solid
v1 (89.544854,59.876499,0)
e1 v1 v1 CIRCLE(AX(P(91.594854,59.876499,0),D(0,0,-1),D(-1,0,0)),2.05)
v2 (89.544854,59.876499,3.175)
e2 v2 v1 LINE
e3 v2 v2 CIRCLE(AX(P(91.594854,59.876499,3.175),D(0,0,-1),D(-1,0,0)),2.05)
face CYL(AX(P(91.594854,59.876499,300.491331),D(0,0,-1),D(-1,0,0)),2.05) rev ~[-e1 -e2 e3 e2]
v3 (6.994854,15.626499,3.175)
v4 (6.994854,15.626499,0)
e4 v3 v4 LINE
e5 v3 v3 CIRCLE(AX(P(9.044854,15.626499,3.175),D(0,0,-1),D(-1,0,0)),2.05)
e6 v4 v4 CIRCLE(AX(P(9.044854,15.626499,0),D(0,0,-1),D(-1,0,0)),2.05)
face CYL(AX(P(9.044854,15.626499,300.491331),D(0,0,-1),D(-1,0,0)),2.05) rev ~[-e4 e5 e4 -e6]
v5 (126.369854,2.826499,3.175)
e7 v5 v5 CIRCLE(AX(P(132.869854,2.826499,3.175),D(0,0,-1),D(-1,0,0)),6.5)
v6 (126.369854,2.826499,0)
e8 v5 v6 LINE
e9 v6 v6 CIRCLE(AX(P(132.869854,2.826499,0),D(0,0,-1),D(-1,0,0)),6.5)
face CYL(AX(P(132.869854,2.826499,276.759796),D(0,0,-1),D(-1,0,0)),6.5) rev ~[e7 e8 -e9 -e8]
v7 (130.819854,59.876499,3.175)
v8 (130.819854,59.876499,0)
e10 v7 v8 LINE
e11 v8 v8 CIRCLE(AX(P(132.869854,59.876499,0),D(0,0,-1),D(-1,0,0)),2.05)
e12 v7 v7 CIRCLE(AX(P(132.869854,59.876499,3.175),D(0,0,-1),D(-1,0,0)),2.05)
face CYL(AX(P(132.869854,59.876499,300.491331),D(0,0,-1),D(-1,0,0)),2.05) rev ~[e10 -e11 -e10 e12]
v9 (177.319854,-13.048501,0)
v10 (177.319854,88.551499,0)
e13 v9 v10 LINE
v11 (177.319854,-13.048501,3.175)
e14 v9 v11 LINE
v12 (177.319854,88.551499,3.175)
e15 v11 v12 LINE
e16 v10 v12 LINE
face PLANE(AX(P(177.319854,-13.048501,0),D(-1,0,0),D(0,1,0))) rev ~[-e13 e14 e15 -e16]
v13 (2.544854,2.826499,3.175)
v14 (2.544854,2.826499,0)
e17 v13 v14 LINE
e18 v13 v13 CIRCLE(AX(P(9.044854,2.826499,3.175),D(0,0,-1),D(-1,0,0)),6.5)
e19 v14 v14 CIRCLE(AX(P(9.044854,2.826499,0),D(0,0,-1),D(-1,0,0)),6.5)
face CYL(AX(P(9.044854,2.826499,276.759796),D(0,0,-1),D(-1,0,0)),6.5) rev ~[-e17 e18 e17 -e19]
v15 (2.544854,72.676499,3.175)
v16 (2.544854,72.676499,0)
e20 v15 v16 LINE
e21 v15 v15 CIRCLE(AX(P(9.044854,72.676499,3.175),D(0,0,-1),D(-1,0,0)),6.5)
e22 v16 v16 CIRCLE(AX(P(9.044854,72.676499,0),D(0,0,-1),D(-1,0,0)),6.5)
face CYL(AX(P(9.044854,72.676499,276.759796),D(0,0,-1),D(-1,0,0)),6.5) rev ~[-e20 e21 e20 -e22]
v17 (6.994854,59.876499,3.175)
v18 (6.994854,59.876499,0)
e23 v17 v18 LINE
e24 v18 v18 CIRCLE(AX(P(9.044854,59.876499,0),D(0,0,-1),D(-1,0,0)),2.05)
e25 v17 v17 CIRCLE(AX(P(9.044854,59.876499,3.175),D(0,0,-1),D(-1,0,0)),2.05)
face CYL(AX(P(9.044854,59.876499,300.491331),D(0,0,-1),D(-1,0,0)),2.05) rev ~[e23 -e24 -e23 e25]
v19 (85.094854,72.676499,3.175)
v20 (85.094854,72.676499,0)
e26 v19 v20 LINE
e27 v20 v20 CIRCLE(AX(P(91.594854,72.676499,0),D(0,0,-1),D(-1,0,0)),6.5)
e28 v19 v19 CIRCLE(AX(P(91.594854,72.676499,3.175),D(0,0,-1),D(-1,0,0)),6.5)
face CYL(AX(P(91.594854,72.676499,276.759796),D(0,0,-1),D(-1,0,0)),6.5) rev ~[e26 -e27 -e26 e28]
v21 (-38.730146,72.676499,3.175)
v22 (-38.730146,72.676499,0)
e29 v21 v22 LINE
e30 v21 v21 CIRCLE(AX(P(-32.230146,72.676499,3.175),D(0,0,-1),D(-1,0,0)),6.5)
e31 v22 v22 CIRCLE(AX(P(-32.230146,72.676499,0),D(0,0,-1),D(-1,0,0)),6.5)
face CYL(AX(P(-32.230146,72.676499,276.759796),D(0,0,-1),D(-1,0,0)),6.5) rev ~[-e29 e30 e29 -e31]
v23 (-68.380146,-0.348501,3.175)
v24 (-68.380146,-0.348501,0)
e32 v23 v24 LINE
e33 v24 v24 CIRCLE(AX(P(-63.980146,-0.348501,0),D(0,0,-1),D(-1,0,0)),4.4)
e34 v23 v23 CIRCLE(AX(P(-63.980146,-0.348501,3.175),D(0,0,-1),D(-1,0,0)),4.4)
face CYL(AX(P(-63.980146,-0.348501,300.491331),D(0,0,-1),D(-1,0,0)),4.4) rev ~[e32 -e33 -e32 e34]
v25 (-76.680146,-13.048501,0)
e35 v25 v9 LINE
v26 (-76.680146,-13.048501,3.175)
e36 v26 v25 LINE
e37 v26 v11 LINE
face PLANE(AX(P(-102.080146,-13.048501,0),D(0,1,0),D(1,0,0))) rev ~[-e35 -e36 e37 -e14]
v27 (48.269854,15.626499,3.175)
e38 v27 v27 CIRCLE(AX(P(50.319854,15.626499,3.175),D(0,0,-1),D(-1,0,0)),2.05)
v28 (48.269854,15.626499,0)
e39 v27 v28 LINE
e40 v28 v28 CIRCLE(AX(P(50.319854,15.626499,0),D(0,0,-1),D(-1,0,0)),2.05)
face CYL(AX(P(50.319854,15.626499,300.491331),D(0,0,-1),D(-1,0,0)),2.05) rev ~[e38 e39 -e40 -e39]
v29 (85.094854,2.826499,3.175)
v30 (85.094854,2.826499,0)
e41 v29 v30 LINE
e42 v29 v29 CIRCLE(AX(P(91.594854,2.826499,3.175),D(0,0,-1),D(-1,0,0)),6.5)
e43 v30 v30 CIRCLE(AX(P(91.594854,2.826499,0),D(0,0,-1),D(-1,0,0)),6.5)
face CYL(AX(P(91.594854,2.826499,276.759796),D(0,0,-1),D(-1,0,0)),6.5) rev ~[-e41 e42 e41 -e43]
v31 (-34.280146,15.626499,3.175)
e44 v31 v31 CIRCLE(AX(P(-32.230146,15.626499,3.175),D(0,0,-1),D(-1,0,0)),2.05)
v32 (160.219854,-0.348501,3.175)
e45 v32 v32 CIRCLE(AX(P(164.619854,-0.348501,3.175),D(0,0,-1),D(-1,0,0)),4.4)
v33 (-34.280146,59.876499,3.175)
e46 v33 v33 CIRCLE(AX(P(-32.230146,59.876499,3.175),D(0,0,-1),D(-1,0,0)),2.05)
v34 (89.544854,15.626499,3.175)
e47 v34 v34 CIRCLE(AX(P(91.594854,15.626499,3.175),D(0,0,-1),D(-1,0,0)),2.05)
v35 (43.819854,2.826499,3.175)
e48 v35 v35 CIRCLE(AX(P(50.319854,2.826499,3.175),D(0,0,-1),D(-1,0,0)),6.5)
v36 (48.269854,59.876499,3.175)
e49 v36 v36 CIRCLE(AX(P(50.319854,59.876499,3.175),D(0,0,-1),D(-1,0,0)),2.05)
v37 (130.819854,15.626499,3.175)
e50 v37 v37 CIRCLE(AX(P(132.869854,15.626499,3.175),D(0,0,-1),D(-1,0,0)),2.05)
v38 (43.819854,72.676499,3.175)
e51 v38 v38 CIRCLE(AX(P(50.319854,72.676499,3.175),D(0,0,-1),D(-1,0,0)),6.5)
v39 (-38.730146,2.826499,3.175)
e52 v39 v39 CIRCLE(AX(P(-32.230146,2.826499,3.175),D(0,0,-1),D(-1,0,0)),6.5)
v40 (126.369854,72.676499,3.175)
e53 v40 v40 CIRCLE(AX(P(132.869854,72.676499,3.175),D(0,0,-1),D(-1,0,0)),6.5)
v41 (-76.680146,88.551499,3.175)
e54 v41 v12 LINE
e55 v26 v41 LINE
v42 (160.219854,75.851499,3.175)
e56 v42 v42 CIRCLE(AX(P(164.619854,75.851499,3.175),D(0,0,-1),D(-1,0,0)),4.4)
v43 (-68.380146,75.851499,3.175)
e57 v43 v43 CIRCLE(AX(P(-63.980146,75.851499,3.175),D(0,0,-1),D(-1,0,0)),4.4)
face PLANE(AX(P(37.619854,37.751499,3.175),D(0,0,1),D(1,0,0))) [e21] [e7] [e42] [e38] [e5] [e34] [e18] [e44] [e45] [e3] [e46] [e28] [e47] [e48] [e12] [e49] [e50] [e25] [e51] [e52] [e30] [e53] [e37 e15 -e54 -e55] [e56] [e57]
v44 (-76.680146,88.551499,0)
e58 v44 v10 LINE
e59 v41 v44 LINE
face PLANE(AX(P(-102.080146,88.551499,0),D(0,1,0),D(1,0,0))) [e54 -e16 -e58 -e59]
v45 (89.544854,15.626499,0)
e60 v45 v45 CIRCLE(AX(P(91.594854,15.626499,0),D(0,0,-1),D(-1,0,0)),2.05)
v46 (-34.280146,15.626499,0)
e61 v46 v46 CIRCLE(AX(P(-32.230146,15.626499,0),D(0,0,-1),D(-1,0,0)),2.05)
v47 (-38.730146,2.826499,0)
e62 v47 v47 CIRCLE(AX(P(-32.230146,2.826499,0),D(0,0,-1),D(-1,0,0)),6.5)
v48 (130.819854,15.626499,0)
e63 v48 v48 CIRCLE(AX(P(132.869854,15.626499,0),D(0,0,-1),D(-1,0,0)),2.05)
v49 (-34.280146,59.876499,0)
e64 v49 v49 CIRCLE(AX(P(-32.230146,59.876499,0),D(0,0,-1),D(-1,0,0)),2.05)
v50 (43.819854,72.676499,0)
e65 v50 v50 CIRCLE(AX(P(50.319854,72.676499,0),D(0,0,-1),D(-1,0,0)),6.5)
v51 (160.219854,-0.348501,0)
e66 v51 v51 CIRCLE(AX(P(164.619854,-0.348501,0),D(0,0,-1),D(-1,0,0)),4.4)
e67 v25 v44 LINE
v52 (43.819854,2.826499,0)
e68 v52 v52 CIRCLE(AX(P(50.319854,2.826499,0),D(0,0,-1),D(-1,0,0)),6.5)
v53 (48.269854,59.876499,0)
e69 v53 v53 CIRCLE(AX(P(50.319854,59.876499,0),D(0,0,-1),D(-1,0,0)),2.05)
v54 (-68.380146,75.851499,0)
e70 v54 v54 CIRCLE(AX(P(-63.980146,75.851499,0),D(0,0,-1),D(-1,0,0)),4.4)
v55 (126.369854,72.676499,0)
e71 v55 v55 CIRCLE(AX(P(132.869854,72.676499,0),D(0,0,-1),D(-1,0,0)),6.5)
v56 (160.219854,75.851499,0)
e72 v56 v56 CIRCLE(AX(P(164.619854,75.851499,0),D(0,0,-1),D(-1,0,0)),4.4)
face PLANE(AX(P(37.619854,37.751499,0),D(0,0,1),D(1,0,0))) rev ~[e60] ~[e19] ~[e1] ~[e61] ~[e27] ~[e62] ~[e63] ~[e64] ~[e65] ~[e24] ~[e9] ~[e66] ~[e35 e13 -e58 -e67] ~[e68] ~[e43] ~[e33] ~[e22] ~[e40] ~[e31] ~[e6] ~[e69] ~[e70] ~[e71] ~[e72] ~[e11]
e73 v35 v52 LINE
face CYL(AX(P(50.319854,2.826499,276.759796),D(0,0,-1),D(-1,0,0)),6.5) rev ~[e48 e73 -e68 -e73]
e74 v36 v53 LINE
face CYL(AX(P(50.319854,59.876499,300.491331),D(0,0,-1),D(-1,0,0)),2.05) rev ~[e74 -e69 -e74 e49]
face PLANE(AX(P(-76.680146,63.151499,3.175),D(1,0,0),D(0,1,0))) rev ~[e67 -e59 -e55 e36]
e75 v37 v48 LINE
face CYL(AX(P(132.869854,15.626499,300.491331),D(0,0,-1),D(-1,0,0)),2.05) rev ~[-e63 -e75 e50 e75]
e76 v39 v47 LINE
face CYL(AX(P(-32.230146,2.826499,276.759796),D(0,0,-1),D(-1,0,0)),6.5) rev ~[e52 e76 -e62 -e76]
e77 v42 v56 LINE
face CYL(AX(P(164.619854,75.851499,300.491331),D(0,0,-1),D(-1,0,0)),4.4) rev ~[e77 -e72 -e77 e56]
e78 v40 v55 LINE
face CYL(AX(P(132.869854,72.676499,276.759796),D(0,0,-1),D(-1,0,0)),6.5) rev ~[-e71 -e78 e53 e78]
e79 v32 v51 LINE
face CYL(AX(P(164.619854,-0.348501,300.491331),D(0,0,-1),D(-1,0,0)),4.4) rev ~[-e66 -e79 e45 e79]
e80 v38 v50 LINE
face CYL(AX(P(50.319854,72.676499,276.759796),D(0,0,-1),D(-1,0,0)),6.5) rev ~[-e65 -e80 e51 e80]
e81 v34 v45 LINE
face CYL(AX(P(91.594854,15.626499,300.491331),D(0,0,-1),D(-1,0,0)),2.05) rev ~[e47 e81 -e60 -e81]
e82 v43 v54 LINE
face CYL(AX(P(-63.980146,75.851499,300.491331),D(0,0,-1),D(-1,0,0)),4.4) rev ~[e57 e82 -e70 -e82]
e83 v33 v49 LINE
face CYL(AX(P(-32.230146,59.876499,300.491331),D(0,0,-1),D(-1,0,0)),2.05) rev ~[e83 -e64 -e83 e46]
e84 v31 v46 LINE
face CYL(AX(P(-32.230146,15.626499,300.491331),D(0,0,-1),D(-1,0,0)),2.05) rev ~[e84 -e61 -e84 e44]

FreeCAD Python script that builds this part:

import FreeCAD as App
import Part
import Sketcher
from FreeCAD import Vector
Q = App.Units.Quantity


def add_polygon(sketch, points):
    """Adds a closed chain of lines whose ends are joined by coincident constraints."""
    first, n = sketch.GeometryCount, len(points)
    for a, b in zip(points, points[1:] + points[:1]):
        sketch.addGeometry(Part.LineSegment(App.Vector(*a, 0), App.Vector(*b, 0)), False)
    for i in range(n):
        sketch.addConstraint(Sketcher.Constraint("Coincident", first + i, 2, first + (i + 1) % n, 1))

doc = App.newDocument("Part")
body = doc.addObject("PartDesign::Body", "Body")

# Sketch on XY plane
sketch1 = body.newObject("Sketcher::SketchObject", "Sketch")
sketch1.AttachmentSupport = (doc.getObject("XY_Plane"), [""])
sketch1.MapMode = "FlatFace"
add_polygon(sketch1, [(-102.080146, 88.551499), (-102.080146, -13.048501), (177.319854, -13.048501), (177.319854, 88.551499)])  # lines 0-3
sketch1.addConstraint(Sketcher.Constraint("Vertical", 0))
sketch1.addConstraint(Sketcher.Constraint("Horizontal", 1))
sketch1.addConstraint(Sketcher.Constraint("Vertical", 2))
sketch1.addConstraint(Sketcher.Constraint("Horizontal", 3))
sketch1.addConstraint(Sketcher.Constraint("DistanceX", 1, 1, 1, 2, Q("11 in")))
sketch1.addConstraint(Sketcher.Constraint("DistanceY", 0, 2, 0, 1, Q("4 in")))
sketch1.addConstraint(Sketcher.Constraint("DistanceY", 0, 2, -1, 1, Q("13.048501 mm")))
sketch1.addConstraint(Sketcher.Constraint("DistanceX", 0, 2, -1, 1, Q("102.080146 mm")))
pad1 = body.newObject("PartDesign::Pad", "Pad")
pad1.Profile = sketch1
pad1.Length = Q("0.125 in")

# Sketch on XY plane
sketch2 = body.newObject("Sketcher::SketchObject", "Sketch001")
sketch2.AttachmentSupport = (doc.getObject("XY_Plane"), [""])
sketch2.MapMode = "FlatFace"
sketch2.AttachmentOffset = App.Placement(Vector(0, 0, 0.125 * 25.4), App.Rotation())
add_polygon(sketch2, [(-102.080146, 63.151499), (-102.080146, -13.048501), (-76.680146, -13.048501), (-76.680146, 63.151499)])  # lines 0-3
sketch2.addConstraint(Sketcher.Constraint("Vertical", 0))
sketch2.addConstraint(Sketcher.Constraint("Horizontal", 1))
sketch2.addConstraint(Sketcher.Constraint("Vertical", 2))
sketch2.addConstraint(Sketcher.Constraint("Horizontal", 3))
sketch2.addConstraint(Sketcher.Constraint("DistanceX", 1, 1, 1, 2, Q("1 in")))
sketch2.addConstraint(Sketcher.Constraint("DistanceY", 0, 2, 0, 1, Q("3 in")))
sketch2.addConstraint(Sketcher.Constraint("DistanceY", 0, 2, -1, 1, Q("13.048501 mm")))
sketch2.addConstraint(Sketcher.Constraint("DistanceX", 0, 2, -1, 1, Q("102.080146 mm")))
pocket1 = body.newObject("PartDesign::Pocket", "Pocket")
pocket1.Profile = sketch2
pocket1.Type = "ThroughAll"

# Sketch on XY plane
sketch3 = body.newObject("Sketcher::SketchObject", "Sketch002")
sketch3.AttachmentSupport = (doc.getObject("XY_Plane"), [""])
sketch3.MapMode = "FlatFace"
sketch3.AttachmentOffset = App.Placement(Vector(0, 0, 0.125 * 25.4), App.Rotation())
sketch3.addGeometry(Part.Circle(Vector(-89.380146, 75.851499, 0), Vector(0, 0, 1), 3.175), False)
sketch3.addConstraint(Sketcher.Constraint("Diameter", 0, Q("0.25 in")))
sketch3.addConstraint(Sketcher.Constraint("DistanceY", -1, 1, 0, 3, Q("75.851499 mm")))
sketch3.addConstraint(Sketcher.Constraint("DistanceX", 0, 3, -1, 1, Q("89.380146 mm")))
doc.recompute()
hole = body.newObject("PartDesign::Hole", "Hole")
hole.Profile = sketch3
hole.ThreadType = "None"
hole.Diameter = Q("0.25 in")
hole.DepthType = "ThroughAll"

# Sketch on XY plane
sketch4 = body.newObject("Sketcher::SketchObject", "Sketch003")
sketch4.AttachmentSupport = (doc.getObject("XY_Plane"), [""])
sketch4.MapMode = "FlatFace"
sketch4.AttachmentOffset = App.Placement(Vector(0, 0, 0.125 * 25.4), App.Rotation())
sketch4.addGeometry(Part.Circle(Vector(-63.980146, 75.851499, 0), Vector(0, 0, 1), 4.4), False)
sketch4.addConstraint(Sketcher.Constraint("Diameter", 0, Q("8.8 mm")))
sketch4.addConstraint(Sketcher.Constraint("DistanceY", -1, 1, 0, 3, Q("75.851499 mm")))
sketch4.addConstraint(Sketcher.Constraint("DistanceX", 0, 3, -1, 1, Q("63.980146 mm")))
doc.recompute()
hole2 = body.newObject("PartDesign::Hole", "Hole001")
hole2.Profile = sketch4
hole2.ThreadType = "None"
hole2.Diameter = 8.8
hole2.DepthType = "ThroughAll"

# Sketch on XY plane
sketch5 = body.newObject("Sketcher::SketchObject", "Sketch004")
sketch5.AttachmentSupport = (doc.getObject("XY_Plane"), [""])
sketch5.MapMode = "FlatFace"
sketch5.AttachmentOffset = App.Placement(Vector(0, 0, 0.125 * 25.4), App.Rotation())
sketch5.addGeometry(Part.Circle(Vector(-63.980146, -0.348501, 0), Vector(0, 0, 1), 4.4), False)
sketch5.addGeometry(Part.Circle(Vector(164.619854, -0.348501, 0), Vector(0, 0, 1), 4.4), False)
sketch5.addGeometry(Part.Circle(Vector(164.619854, 75.851499, 0), Vector(0, 0, 1), 4.4), False)
sketch5.addConstraint(Sketcher.Constraint("Equal", 0, 1))
sketch5.addConstraint(Sketcher.Constraint("Equal", 1, 2))
sketch5.addConstraint(Sketcher.Constraint("Horizontal", 0, 3, 1, 3))
sketch5.addConstraint(Sketcher.Constraint("Vertical", 1, 3, 2, 3))
sketch5.addConstraint(Sketcher.Constraint("DistanceX", 0, 3, 1, 3, Q("9 in")))
sketch5.addConstraint(Sketcher.Constraint("DistanceY", 1, 3, 2, 3, Q("3 in")))
sketch5.addConstraint(Sketcher.Constraint("Diameter", 0, Q("8.8 mm")))
sketch5.addConstraint(Sketcher.Constraint("DistanceY", 0, 3, -1, 1, Q("0.348501 mm")))
sketch5.addConstraint(Sketcher.Constraint("DistanceX", 0, 3, -1, 1, Q("63.980146 mm")))
doc.recompute()
hole3 = body.newObject("PartDesign::Hole", "Hole002")
hole3.Profile = sketch5
hole3.ThreadType = "None"
hole3.Diameter = 8.8
hole3.DepthType = "ThroughAll"

# Sketch on XY plane
sketch6 = body.newObject("Sketcher::SketchObject", "Sketch005")
sketch6.AttachmentSupport = (doc.getObject("XY_Plane"), [""])
sketch6.MapMode = "FlatFace"
sketch6.AttachmentOffset = App.Placement(Vector(0, 0, 0.125 * 25.4), App.Rotation())
sketch6.addGeometry(Part.Circle(Vector(132.869854, 15.626499, 0), Vector(0, 0, 1), 2.05), False)
sketch6.addGeometry(Part.Circle(Vector(91.594854, 15.626499, 0), Vector(0, 0, 1), 2.05), False)
sketch6.addGeometry(Part.Circle(Vector(50.319854, 15.626499, 0), Vector(0, 0, 1), 2.05), False)
sketch6.addGeometry(Part.Circle(Vector(9.044854, 15.626499, 0), Vector(0, 0, 1), 2.05), False)
sketch6.addGeometry(Part.Circle(Vector(-32.230146, 15.626499, 0), Vector(0, 0, 1), 2.05), False)
sketch6.addGeometry(Part.Circle(Vector(132.869854, 59.876499, 0), Vector(0, 0, 1), 2.05), False)
sketch6.addGeometry(Part.Circle(Vector(91.594854, 59.876499, 0), Vector(0, 0, 1), 2.05), False)
sketch6.addGeometry(Part.Circle(Vector(50.319854, 59.876499, 0), Vector(0, 0, 1), 2.05), False)
sketch6.addGeometry(Part.Circle(Vector(9.044854, 59.876499, 0), Vector(0, 0, 1), 2.05), False)
sketch6.addGeometry(Part.Circle(Vector(-32.230146, 59.876499, 0), Vector(0, 0, 1), 2.05), False)
sketch6.addConstraint(Sketcher.Constraint("Equal", 0, 1))
sketch6.addConstraint(Sketcher.Constraint("Equal", 1, 2))
sketch6.addConstraint(Sketcher.Constraint("Equal", 2, 3))
sketch6.addConstraint(Sketcher.Constraint("Equal", 3, 4))
sketch6.addConstraint(Sketcher.Constraint("Equal", 4, 5))
sketch6.addConstraint(Sketcher.Constraint("Equal", 5, 6))
sketch6.addConstraint(Sketcher.Constraint("Equal", 6, 7))
sketch6.addConstraint(Sketcher.Constraint("Equal", 7, 8))
sketch6.addConstraint(Sketcher.Constraint("Equal", 8, 9))
sketch6.addConstraint(Sketcher.Constraint("Horizontal", 0, 3, 1, 3))
sketch6.addConstraint(Sketcher.Constraint("Horizontal", 1, 3, 2, 3))
sketch6.addConstraint(Sketcher.Constraint("Horizontal", 2, 3, 3, 3))
sketch6.addConstraint(Sketcher.Constraint("Horizontal", 3, 3, 4, 3))
sketch6.addConstraint(Sketcher.Constraint("Horizontal", 5, 3, 6, 3))
sketch6.addConstraint(Sketcher.Constraint("Horizontal", 6, 3, 7, 3))
sketch6.addConstraint(Sketcher.Constraint("Horizontal", 7, 3, 8, 3))
sketch6.addConstraint(Sketcher.Constraint("Horizontal", 8, 3, 9, 3))
sketch6.addConstraint(Sketcher.Constraint("Vertical", 0, 3, 5, 3))
sketch6.addConstraint(Sketcher.Constraint("Vertical", 1, 3, 6, 3))
sketch6.addConstraint(Sketcher.Constraint("Vertical", 2, 3, 7, 3))
sketch6.addConstraint(Sketcher.Constraint("Vertical", 3, 3, 8, 3))
sketch6.addConstraint(Sketcher.Constraint("Vertical", 4, 3, 9, 3))
sketch6.addConstraint(Sketcher.Constraint("DistanceX", 4, 3, 0, 3, Q("6.5 in")))
sketch6.addConstraint(Sketcher.Constraint("Diameter", 0, Q("4.1 mm")))
sketch6.addConstraint(Sketcher.Constraint("DistanceX", 2, 3, 0, 3, Q("3.25 in")))
sketch6.addConstraint(Sketcher.Constraint("DistanceX", 3, 3, 1, 3, Q("3.25 in")))
sketch6.addConstraint(Sketcher.Constraint("DistanceX", 1, 3, 0, 3, Q("1.625 in")))
sketch6.addConstraint(Sketcher.Constraint("DistanceY", -1, 1, 0, 3, Q("15.626499 mm")))
sketch6.addConstraint(Sketcher.Constraint("DistanceY", -1, 1, 5, 3, Q("59.876499 mm")))
sketch6.addConstraint(Sketcher.Constraint("DistanceX", -1, 1, 0, 3, Q("132.869854 mm")))
doc.recompute()
hole4 = body.newObject("PartDesign::Hole", "Hole003")
hole4.Profile = sketch6
hole4.ThreadType = "None"
hole4.Diameter = 4.1
hole4.DepthType = "ThroughAll"

# Sketch on XY plane
sketch7 = body.newObject("Sketcher::SketchObject", "Sketch006")
sketch7.AttachmentSupport = (doc.getObject("XY_Plane"), [""])
sketch7.MapMode = "FlatFace"
sketch7.AttachmentOffset = App.Placement(Vector(0, 0, 0.125 * 25.4), App.Rotation())
add_polygon(sketch7, [(-102.080146, 88.551499), (-102.080146, 63.151499), (-76.680146, 63.151499), (-76.680146, 88.551499)])  # lines 0-3
sketch7.addGeometry(Part.Circle(Vector(-89.380146, 75.851499, 0), Vector(0, 0, 1), 3.175), False)  # 4
sketch7.addConstraint(Sketcher.Constraint("Vertical", 0))
sketch7.addConstraint(Sketcher.Constraint("Horizontal", 1))
sketch7.addConstraint(Sketcher.Constraint("Vertical", 2))
sketch7.addConstraint(Sketcher.Constraint("Horizontal", 3))
sketch7.addConstraint(Sketcher.Constraint("Equal", 3, 0))
sketch7.addConstraint(Sketcher.Constraint("Diameter", 4, Q("0.25 in")))
sketch7.addConstraint(Sketcher.Constraint("DistanceX", 1, 1, 1, 2, Q("1 in")))
sketch7.addConstraint(Sketcher.Constraint("DistanceX", 0, 2, 4, 3, Q("0.5 in")))
sketch7.addConstraint(Sketcher.Constraint("DistanceY", 0, 2, 4, 3, Q("0.5 in")))
sketch7.addConstraint(Sketcher.Constraint("DistanceY", -1, 1, 4, 3, Q("75.851499 mm")))
sketch7.addConstraint(Sketcher.Constraint("DistanceX", 4, 3, -1, 1, Q("89.380146 mm")))
pocket2 = body.newObject("PartDesign::Pocket", "Pocket001")
pocket2.Profile = sketch7
pocket2.Length = Q("1 in")

# Sketch on XY plane
sketch8 = body.newObject("Sketcher::SketchObject", "Sketch007")
sketch8.AttachmentSupport = (doc.getObject("XY_Plane"), [""])
sketch8.MapMode = "FlatFace"
sketch8.AttachmentOffset = App.Placement(Vector(0, 0, 0.125 * 25.4), App.Rotation())
sketch8.addGeometry(Part.Circle(Vector(132.869854, 2.826499, 0), Vector(0, 0, 1), 6.5), False)
sketch8.addGeometry(Part.Circle(Vector(91.594854, 2.826499, 0), Vector(0, 0, 1), 6.5), False)
sketch8.addGeometry(Part.Circle(Vector(50.319854, 2.826499, 0), Vector(0, 0, 1), 6.5), False)
sketch8.addGeometry(Part.Circle(Vector(9.044854, 2.826499, 0), Vector(0, 0, 1), 6.5), False)
sketch8.addGeometry(Part.Circle(Vector(-32.230146, 2.826499, 0), Vector(0, 0, 1), 6.5), False)
sketch8.addGeometry(Part.Circle(Vector(132.869854, 72.676499, 0), Vector(0, 0, 1), 6.5), False)
sketch8.addGeometry(Part.Circle(Vector(91.594854, 72.676499, 0), Vector(0, 0, 1), 6.5), False)
sketch8.addGeometry(Part.Circle(Vector(50.319854, 72.676499, 0), Vector(0, 0, 1), 6.5), False)
sketch8.addGeometry(Part.Circle(Vector(9.044854, 72.676499, 0), Vector(0, 0, 1), 6.5), False)
sketch8.addGeometry(Part.Circle(Vector(-32.230146, 72.676499, 0), Vector(0, 0, 1), 6.5), False)
sketch8.addConstraint(Sketcher.Constraint("Equal", 0, 1))
sketch8.addConstraint(Sketcher.Constraint("Equal", 1, 2))
sketch8.addConstraint(Sketcher.Constraint("Equal", 2, 3))
sketch8.addConstraint(Sketcher.Constraint("Equal", 3, 4))
sketch8.addConstraint(Sketcher.Constraint("Equal", 4, 5))
sketch8.addConstraint(Sketcher.Constraint("Equal", 5, 6))
sketch8.addConstraint(Sketcher.Constraint("Equal", 6, 7))
sketch8.addConstraint(Sketcher.Constraint("Equal", 7, 8))
sketch8.addConstraint(Sketcher.Constraint("Equal", 8, 9))
sketch8.addConstraint(Sketcher.Constraint("Horizontal", 0, 3, 1, 3))
sketch8.addConstraint(Sketcher.Constraint("Horizontal", 1, 3, 2, 3))
sketch8.addConstraint(Sketcher.Constraint("Horizontal", 2, 3, 3, 3))
sketch8.addConstraint(Sketcher.Constraint("Horizontal", 3, 3, 4, 3))
sketch8.addConstraint(Sketcher.Constraint("Horizontal", 5, 3, 6, 3))
sketch8.addConstraint(Sketcher.Constraint("Horizontal", 6, 3, 7, 3))
sketch8.addConstraint(Sketcher.Constraint("Horizontal", 7, 3, 8, 3))
sketch8.addConstraint(Sketcher.Constraint("Horizontal", 8, 3, 9, 3))
sketch8.addConstraint(Sketcher.Constraint("Vertical", 0, 3, 5, 3))
sketch8.addConstraint(Sketcher.Constraint("Vertical", 1, 3, 6, 3))
sketch8.addConstraint(Sketcher.Constraint("Vertical", 2, 3, 7, 3))
sketch8.addConstraint(Sketcher.Constraint("Vertical", 3, 3, 8, 3))
sketch8.addConstraint(Sketcher.Constraint("Vertical", 4, 3, 9, 3))
sketch8.addConstraint(Sketcher.Constraint("DistanceX", 4, 3, 0, 3, Q("6.5 in")))
sketch8.addConstraint(Sketcher.Constraint("Diameter", 0, Q("12.999999 mm")))
sketch8.addConstraint(Sketcher.Constraint("DistanceX", 2, 3, 0, 3, Q("3.25 in")))
sketch8.addConstraint(Sketcher.Constraint("DistanceX", 3, 3, 1, 3, Q("3.25 in")))
sketch8.addConstraint(Sketcher.Constraint("DistanceY", 0, 3, 5, 3, Q("2.75 in")))
sketch8.addConstraint(Sketcher.Constraint("DistanceX", 1, 3, 0, 3, Q("1.625 in")))
sketch8.addConstraint(Sketcher.Constraint("DistanceY", -1, 1, 0, 3, Q("2.826499 mm")))
sketch8.addConstraint(Sketcher.Constraint("DistanceX", -1, 1, 0, 3, Q("132.869854 mm")))
doc.recompute()
hole5 = body.newObject("PartDesign::Hole", "Hole004")
hole5.Profile = sketch8
hole5.ThreadType = "None"
hole5.Diameter = 12.999999
hole5.DepthType = "ThroughAll"

doc.recompute()
